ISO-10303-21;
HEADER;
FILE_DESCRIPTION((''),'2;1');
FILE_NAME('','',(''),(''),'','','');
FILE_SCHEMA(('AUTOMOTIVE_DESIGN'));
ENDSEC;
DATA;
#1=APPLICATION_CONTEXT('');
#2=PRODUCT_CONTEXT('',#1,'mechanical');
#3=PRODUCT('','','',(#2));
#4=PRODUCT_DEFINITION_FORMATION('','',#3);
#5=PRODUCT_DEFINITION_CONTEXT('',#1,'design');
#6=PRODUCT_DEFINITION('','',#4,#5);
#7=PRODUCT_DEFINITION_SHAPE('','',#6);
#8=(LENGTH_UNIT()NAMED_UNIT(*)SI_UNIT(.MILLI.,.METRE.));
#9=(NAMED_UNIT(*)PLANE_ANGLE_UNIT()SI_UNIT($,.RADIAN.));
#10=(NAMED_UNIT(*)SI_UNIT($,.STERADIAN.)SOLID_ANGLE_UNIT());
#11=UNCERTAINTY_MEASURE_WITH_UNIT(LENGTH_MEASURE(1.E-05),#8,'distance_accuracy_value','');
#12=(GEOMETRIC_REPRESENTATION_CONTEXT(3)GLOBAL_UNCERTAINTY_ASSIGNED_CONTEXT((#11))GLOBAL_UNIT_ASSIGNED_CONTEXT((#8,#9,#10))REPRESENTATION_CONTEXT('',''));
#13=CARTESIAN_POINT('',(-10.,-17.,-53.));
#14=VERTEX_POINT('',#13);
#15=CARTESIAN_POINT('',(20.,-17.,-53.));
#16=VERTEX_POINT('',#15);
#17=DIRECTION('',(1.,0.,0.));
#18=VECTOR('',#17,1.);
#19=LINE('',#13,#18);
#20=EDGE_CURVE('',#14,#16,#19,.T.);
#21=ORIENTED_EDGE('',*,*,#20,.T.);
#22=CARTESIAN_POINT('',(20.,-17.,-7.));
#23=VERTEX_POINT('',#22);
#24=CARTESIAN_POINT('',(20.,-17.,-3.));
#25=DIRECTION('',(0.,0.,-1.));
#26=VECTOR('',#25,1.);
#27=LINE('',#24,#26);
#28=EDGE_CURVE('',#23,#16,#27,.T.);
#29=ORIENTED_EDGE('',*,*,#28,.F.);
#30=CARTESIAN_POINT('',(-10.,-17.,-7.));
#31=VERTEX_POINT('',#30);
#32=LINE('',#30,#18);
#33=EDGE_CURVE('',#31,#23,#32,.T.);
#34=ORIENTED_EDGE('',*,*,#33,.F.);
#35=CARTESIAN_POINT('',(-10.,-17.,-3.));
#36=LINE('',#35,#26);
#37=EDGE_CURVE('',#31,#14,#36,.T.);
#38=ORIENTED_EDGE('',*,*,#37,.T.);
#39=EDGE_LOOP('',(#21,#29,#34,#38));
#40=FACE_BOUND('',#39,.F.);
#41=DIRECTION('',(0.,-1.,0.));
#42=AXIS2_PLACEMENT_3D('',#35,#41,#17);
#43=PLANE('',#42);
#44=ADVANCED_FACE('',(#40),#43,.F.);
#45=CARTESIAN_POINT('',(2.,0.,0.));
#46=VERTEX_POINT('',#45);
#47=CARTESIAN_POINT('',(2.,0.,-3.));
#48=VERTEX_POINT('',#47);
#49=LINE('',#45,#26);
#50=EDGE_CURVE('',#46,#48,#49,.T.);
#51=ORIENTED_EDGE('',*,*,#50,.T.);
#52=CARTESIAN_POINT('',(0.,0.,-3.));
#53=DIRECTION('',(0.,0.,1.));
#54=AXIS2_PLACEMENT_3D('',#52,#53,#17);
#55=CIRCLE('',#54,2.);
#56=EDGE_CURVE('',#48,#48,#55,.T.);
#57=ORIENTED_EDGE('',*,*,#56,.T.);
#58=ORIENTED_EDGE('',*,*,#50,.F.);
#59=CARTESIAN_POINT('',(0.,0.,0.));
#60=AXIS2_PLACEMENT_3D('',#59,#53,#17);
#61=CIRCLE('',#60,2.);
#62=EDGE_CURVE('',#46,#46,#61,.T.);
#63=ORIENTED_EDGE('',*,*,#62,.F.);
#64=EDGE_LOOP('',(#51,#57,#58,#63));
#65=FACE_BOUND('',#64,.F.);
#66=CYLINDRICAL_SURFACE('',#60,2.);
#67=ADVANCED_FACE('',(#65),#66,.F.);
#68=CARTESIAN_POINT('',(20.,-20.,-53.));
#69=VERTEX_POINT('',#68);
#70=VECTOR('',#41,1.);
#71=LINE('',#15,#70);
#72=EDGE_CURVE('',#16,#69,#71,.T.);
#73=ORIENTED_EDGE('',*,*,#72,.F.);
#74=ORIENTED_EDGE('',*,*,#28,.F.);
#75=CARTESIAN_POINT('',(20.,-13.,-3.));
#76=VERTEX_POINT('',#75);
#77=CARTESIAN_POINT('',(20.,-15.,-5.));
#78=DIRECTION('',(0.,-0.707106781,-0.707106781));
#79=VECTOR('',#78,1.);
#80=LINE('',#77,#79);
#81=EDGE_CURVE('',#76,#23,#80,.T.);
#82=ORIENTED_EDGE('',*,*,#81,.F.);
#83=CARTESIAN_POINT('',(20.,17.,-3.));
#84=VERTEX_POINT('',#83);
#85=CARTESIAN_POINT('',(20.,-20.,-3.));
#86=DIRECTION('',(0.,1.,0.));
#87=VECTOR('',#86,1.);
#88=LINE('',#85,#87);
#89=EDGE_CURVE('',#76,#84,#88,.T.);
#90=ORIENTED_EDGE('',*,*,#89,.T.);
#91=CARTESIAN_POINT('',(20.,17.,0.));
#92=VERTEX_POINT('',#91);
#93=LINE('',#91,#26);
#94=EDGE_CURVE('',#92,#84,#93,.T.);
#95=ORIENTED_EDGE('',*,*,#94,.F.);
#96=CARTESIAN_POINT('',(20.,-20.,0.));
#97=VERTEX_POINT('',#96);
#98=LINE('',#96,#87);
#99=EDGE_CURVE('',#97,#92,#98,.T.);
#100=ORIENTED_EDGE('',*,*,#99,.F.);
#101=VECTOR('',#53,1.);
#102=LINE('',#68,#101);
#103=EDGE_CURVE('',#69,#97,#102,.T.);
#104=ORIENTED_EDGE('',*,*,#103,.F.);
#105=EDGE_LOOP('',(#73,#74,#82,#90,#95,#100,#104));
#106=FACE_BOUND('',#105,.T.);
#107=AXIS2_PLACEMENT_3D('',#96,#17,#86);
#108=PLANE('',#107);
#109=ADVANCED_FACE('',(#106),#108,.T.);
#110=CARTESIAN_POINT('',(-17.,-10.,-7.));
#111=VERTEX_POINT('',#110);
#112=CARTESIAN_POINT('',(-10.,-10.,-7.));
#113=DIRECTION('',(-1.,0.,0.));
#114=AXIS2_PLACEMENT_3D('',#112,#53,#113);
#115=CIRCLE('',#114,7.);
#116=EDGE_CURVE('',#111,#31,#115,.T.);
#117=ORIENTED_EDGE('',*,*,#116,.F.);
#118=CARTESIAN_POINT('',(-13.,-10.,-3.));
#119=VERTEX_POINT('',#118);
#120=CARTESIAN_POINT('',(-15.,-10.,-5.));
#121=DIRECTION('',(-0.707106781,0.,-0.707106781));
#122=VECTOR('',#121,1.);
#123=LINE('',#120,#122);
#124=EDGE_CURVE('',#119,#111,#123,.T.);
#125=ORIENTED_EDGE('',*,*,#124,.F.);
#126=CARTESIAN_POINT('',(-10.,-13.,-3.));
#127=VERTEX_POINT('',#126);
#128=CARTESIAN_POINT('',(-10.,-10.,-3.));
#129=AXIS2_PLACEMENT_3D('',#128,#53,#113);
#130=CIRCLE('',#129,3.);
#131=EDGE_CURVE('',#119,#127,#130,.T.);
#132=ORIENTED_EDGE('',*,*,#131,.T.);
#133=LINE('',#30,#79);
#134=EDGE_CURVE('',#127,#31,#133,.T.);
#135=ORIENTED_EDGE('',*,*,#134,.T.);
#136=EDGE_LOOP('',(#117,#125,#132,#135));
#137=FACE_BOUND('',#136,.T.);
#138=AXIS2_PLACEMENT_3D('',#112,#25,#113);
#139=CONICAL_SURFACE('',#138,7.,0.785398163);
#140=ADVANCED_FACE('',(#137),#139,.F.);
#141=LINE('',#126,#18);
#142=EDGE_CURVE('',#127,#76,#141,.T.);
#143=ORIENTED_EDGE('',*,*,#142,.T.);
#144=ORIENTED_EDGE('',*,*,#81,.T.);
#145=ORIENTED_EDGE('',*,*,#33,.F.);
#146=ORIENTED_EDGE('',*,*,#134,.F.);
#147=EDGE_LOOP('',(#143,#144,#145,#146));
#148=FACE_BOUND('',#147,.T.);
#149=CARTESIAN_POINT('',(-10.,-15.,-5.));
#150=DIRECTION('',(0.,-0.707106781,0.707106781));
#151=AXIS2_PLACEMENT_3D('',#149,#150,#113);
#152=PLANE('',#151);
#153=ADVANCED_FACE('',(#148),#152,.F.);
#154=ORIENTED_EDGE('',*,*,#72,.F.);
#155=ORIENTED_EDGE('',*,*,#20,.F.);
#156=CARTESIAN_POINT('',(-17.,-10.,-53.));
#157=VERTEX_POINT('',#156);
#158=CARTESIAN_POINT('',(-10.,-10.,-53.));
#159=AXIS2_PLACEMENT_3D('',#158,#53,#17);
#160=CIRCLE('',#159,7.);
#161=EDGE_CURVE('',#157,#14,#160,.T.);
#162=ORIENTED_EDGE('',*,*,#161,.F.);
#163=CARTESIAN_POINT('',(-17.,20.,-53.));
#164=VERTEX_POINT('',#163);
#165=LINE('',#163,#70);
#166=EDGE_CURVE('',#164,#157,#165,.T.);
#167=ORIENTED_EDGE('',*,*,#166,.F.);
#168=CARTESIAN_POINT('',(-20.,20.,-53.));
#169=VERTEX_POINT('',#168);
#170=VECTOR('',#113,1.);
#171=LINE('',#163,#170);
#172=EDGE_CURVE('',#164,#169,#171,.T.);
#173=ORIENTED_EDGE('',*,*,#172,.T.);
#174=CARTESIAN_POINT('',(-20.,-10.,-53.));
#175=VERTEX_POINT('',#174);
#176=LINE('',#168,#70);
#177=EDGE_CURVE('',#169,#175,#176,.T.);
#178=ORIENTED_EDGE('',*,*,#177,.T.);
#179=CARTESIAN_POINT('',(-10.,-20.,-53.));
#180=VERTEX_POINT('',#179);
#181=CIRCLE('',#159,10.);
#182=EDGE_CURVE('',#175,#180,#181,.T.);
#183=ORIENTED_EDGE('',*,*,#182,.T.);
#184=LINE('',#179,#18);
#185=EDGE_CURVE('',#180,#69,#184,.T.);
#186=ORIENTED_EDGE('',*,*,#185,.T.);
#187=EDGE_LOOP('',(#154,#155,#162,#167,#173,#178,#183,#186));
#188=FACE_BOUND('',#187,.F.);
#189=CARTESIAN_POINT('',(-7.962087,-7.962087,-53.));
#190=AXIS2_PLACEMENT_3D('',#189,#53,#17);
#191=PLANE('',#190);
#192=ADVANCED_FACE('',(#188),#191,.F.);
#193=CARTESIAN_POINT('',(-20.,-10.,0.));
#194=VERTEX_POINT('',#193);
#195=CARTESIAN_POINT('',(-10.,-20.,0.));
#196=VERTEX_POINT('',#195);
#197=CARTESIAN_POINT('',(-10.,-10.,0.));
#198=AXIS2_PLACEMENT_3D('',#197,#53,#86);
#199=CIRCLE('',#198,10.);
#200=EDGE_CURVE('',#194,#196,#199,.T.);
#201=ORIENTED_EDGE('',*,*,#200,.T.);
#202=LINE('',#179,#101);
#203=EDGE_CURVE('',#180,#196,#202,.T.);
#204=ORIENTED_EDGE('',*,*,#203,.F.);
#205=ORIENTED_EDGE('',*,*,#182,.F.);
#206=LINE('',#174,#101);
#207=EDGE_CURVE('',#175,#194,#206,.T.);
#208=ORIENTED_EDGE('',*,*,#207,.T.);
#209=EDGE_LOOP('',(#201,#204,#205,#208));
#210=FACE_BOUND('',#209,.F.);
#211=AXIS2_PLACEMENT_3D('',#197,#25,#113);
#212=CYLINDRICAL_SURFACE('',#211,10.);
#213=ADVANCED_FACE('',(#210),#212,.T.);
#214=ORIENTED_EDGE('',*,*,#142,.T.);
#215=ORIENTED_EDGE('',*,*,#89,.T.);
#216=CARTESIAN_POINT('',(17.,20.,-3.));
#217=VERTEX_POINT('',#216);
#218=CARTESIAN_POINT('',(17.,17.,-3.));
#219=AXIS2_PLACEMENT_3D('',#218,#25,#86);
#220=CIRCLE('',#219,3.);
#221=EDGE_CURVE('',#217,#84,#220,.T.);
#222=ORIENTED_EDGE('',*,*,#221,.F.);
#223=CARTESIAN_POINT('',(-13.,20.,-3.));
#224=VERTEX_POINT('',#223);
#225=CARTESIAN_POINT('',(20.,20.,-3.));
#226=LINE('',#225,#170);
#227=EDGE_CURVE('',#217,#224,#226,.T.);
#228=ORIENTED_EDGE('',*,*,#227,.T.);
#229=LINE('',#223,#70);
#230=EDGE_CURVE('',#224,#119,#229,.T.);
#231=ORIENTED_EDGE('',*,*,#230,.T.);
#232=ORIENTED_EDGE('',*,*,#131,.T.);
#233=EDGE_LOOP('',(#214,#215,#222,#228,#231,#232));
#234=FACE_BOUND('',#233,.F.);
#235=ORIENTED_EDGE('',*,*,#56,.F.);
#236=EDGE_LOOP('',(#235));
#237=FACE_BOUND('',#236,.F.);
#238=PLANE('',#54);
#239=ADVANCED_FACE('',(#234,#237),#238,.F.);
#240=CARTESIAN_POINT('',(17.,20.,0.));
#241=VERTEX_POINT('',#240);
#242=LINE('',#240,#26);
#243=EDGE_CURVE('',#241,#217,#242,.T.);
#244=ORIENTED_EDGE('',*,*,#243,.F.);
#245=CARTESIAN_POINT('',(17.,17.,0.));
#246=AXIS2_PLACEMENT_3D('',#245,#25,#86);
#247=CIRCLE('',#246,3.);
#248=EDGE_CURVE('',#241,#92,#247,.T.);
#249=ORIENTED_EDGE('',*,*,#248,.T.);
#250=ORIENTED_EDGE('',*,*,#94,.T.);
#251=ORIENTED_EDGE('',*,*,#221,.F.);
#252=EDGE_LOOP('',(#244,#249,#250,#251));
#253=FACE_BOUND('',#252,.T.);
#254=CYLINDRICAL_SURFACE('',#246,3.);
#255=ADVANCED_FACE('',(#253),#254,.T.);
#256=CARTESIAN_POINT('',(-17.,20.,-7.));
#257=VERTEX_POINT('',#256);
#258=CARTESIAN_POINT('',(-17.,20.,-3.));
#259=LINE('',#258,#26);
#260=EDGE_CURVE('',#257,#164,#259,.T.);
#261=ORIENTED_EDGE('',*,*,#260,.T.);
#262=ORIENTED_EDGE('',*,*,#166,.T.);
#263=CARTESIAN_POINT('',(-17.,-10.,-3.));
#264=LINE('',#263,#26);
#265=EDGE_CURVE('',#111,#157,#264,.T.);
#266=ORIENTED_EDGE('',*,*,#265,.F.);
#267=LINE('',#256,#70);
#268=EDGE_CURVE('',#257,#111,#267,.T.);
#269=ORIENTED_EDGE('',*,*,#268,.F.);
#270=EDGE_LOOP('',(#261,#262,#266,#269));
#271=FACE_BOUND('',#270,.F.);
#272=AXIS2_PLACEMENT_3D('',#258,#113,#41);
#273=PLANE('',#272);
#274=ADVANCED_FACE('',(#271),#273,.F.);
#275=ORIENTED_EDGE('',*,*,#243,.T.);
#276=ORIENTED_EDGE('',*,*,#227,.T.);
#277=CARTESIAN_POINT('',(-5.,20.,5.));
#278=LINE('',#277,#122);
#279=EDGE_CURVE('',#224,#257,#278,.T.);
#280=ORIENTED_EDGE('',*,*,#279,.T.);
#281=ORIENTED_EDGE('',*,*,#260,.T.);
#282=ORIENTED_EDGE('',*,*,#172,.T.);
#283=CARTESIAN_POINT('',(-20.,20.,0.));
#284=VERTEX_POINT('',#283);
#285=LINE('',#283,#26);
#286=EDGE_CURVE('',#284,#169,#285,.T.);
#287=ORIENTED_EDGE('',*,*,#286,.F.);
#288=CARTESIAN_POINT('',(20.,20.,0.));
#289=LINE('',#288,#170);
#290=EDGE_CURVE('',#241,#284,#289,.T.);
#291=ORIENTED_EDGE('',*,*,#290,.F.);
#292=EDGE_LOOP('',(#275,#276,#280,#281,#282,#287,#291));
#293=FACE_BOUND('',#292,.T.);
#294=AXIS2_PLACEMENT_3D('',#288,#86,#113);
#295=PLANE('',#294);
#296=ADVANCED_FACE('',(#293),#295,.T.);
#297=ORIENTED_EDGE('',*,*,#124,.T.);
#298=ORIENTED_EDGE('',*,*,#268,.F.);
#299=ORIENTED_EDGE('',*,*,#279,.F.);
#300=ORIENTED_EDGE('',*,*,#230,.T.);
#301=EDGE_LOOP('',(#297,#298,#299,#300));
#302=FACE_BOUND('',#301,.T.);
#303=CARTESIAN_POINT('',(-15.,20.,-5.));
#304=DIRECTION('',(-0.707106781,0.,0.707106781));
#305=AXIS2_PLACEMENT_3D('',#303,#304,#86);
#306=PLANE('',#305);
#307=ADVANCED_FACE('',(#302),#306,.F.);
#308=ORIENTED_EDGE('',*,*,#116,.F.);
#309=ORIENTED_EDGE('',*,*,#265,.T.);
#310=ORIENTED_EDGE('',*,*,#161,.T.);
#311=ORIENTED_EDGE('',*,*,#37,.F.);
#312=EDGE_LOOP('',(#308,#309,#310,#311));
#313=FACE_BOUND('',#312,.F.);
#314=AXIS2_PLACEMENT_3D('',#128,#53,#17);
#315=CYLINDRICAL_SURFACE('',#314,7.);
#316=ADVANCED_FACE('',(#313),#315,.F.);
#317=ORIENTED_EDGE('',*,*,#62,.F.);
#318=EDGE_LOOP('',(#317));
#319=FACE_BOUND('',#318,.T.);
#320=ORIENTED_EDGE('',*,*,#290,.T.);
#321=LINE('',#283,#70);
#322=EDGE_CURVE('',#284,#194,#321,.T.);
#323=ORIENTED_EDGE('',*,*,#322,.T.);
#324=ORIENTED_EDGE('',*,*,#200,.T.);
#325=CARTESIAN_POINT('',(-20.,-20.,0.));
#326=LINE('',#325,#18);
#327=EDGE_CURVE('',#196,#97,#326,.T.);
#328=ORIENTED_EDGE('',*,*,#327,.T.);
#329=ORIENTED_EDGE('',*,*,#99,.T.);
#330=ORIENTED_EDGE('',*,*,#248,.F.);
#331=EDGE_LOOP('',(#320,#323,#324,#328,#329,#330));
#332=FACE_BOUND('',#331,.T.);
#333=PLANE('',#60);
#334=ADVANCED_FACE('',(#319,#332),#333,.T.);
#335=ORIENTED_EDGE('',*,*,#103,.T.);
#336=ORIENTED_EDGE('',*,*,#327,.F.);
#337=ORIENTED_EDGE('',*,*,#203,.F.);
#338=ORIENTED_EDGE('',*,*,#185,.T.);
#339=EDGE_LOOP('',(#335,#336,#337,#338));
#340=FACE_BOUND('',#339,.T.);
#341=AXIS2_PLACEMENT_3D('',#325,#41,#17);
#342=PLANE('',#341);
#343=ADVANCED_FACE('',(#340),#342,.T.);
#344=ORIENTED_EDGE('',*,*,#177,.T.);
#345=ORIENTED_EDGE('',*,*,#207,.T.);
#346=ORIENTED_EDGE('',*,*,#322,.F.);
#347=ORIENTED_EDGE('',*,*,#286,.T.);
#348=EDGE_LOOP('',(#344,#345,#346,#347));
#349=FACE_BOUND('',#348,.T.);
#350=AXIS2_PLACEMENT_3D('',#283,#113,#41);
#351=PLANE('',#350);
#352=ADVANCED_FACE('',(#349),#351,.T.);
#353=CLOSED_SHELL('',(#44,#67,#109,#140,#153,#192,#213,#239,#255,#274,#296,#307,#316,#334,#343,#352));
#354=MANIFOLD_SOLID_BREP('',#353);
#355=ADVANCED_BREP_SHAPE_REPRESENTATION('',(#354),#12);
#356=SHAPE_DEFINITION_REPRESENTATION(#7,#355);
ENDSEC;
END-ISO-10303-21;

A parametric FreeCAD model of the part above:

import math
import FreeCAD as App
import Part
import Sketcher

V = App.Vector
Q = App.Units.Quantity


def edges_at(feature, points):
    """Names of the edges that pass closest to the given points."""
    edges = feature.Shape.Edges
    near = lambda p: min(range(len(edges)), key=lambda i: edges[i].distToShape(Part.Vertex(*p))[0])
    return sorted({f"Edge{near(p) + 1}" for p in points})

doc = App.newDocument("Part")
body = doc.addObject("PartDesign::Body", "Body")

# Sketch on XY plane
sketch1 = doc.addObject("Sketcher::SketchObject", "Sketch")
body.addObject(sketch1)
sketch1.AttachmentSupport = (doc.XY_Plane, [""])
sketch1.MapMode = "FlatFace"
sketch1.addGeometry(Part.LineSegment(V(20, 20, 0), V(-20, 20, 0)), False)
sketch1.addGeometry(Part.LineSegment(V(-20, 20, 0), V(-20, -20, 0)), False)
sketch1.addGeometry(Part.LineSegment(V(-20, -20, 0), V(20, -20, 0)), False)
sketch1.addGeometry(Part.LineSegment(V(20, -20, 0), V(20, 20, 0)), False)
sketch1.addGeometry(Part.Circle(V(0, 0, 0), V(0, 0, 1), 2), False)
sketch1.addConstraint(Sketcher.Constraint("Coincident", 0, 2, 1, 1))
sketch1.addConstraint(Sketcher.Constraint("Coincident", 1, 2, 2, 1))
sketch1.addConstraint(Sketcher.Constraint("Coincident", 2, 2, 3, 1))
sketch1.addConstraint(Sketcher.Constraint("Coincident", 3, 2, 0, 1))
sketch1.addConstraint(Sketcher.Constraint("Horizontal", 0))
sketch1.addConstraint(Sketcher.Constraint("Vertical", 1))
sketch1.addConstraint(Sketcher.Constraint("Horizontal", 2))
sketch1.addConstraint(Sketcher.Constraint("Vertical", 3))
sketch1.addConstraint(Sketcher.Constraint("Coincident", 4, 3, -1, 1))
sketch1.addConstraint(Sketcher.Constraint("Symmetric", 0, 2, 2, 2, -1, 1))
sketch1.addConstraint(Sketcher.Constraint("Equal", 2, 1))
sketch1.addConstraint(Sketcher.Constraint("Diameter", 4, Q("4 mm")))
sketch1.addConstraint(Sketcher.Constraint("DistanceX", 0, 2, 0, 1, Q("40 mm")))
pad1 = doc.addObject("PartDesign::Pad", "Pad")
body.addObject(pad1)
pad1.Profile = sketch1
pad1.Length = 3
pad1.Reversed = True
doc.recompute()

fillet = doc.addObject("PartDesign::Fillet", "Fillet")
body.addObject(fillet)
fillet.Base = (pad1, edges_at(pad1, [(-20, -20, -1.5)]))
fillet.Radius = 10

# Sketch on XY plane
sketch2 = doc.addObject("Sketcher::SketchObject", "Sketch001")
body.addObject(sketch2)
sketch2.AttachmentSupport = (doc.XY_Plane, [""])
sketch2.MapMode = "FlatFace"
sketch2.AttachmentOffset = App.Placement(V(0, 0, -3), App.Rotation())
sketch2.addGeometry(Part.LineSegment(V(-20, 20, 0), V(-17, 20, 0)), False)
sketch2.addGeometry(Part.LineSegment(V(-17, 20, 0), V(-17, -10, 0)), False)
sketch2.addGeometry(Part.ArcOfCircle(Part.Circle(V(-10, -10, 0), V(0, 0, 1), 7), math.radians(180), math.radians(270)), False)
sketch2.addGeometry(Part.LineSegment(V(-10, -17, 0), V(20, -17, 0)), False)
sketch2.addGeometry(Part.LineSegment(V(20, -17, 0), V(20, -20, 0)), False)
sketch2.addGeometry(Part.LineSegment(V(20, -20, 0), V(-10, -20, 0)), False)
sketch2.addGeometry(Part.ArcOfCircle(Part.Circle(V(-10, -10, 0), V(0, 0, 1), 10), math.radians(180), math.radians(270)), False)
sketch2.addGeometry(Part.LineSegment(V(-20, -10, 0), V(-20, 20, 0)), False)
sketch2.addConstraint(Sketcher.Constraint("Coincident", 0, 2, 1, 1))
sketch2.addConstraint(Sketcher.Constraint("Tangent", 1, 2, 2, 1))
sketch2.addConstraint(Sketcher.Constraint("Tangent", 2, 2, 3, 1))
sketch2.addConstraint(Sketcher.Constraint("Coincident", 3, 2, 4, 1))
sketch2.addConstraint(Sketcher.Constraint("Coincident", 4, 2, 5, 1))
sketch2.addConstraint(Sketcher.Constraint("Tangent", 5, 2, 6, 2))
sketch2.addConstraint(Sketcher.Constraint("Tangent", 6, 1, 7, 1))
sketch2.addConstraint(Sketcher.Constraint("Coincident", 7, 2, 0, 1))
sketch2.addConstraint(Sketcher.Constraint("Horizontal", 0))
sketch2.addConstraint(Sketcher.Constraint("Vertical", 1))
sketch2.addConstraint(Sketcher.Constraint("Horizontal", 3))
sketch2.addConstraint(Sketcher.Constraint("Vertical", 4))
sketch2.addConstraint(Sketcher.Constraint("Horizontal", 5))
sketch2.addConstraint(Sketcher.Constraint("Vertical", 7))
sketch2.addConstraint(Sketcher.Constraint("Coincident", 6, 3, 2, 3))
sketch2.addConstraint(Sketcher.Constraint("Symmetric", 4, 2, 7, 2, -1, 1))
sketch2.addConstraint(Sketcher.Constraint("Equal", 5, 1))
sketch2.addConstraint(Sketcher.Constraint("Radius", 2, Q("7 mm")))
sketch2.addConstraint(Sketcher.Constraint("Radius", 6, Q("10 mm")))
sketch2.addConstraint(Sketcher.Constraint("DistanceX", 3, 1, 3, 2, Q("30 mm")))
pad2 = doc.addObject("PartDesign::Pad", "Pad001")
body.addObject(pad2)
pad2.Profile = sketch2
pad2.Length = 50
pad2.Reversed = True
doc.recompute()

chamfer = doc.addObject("PartDesign::Chamfer", "Chamfer")
body.addObject(chamfer)
chamfer.Base = (pad2, edges_at(pad2, [(5, -17, -3), (-14.95, -14.95, -3), (-17, 5, -3)]))
chamfer.Size = 4
doc.recompute()

fillet2 = doc.addObject("PartDesign::Fillet", "Fillet001")
body.addObject(fillet2)
fillet2.Base = (chamfer, edges_at(chamfer, [(20, 20, -1.5)]))
fillet2.Radius = 3

doc.recompute()
